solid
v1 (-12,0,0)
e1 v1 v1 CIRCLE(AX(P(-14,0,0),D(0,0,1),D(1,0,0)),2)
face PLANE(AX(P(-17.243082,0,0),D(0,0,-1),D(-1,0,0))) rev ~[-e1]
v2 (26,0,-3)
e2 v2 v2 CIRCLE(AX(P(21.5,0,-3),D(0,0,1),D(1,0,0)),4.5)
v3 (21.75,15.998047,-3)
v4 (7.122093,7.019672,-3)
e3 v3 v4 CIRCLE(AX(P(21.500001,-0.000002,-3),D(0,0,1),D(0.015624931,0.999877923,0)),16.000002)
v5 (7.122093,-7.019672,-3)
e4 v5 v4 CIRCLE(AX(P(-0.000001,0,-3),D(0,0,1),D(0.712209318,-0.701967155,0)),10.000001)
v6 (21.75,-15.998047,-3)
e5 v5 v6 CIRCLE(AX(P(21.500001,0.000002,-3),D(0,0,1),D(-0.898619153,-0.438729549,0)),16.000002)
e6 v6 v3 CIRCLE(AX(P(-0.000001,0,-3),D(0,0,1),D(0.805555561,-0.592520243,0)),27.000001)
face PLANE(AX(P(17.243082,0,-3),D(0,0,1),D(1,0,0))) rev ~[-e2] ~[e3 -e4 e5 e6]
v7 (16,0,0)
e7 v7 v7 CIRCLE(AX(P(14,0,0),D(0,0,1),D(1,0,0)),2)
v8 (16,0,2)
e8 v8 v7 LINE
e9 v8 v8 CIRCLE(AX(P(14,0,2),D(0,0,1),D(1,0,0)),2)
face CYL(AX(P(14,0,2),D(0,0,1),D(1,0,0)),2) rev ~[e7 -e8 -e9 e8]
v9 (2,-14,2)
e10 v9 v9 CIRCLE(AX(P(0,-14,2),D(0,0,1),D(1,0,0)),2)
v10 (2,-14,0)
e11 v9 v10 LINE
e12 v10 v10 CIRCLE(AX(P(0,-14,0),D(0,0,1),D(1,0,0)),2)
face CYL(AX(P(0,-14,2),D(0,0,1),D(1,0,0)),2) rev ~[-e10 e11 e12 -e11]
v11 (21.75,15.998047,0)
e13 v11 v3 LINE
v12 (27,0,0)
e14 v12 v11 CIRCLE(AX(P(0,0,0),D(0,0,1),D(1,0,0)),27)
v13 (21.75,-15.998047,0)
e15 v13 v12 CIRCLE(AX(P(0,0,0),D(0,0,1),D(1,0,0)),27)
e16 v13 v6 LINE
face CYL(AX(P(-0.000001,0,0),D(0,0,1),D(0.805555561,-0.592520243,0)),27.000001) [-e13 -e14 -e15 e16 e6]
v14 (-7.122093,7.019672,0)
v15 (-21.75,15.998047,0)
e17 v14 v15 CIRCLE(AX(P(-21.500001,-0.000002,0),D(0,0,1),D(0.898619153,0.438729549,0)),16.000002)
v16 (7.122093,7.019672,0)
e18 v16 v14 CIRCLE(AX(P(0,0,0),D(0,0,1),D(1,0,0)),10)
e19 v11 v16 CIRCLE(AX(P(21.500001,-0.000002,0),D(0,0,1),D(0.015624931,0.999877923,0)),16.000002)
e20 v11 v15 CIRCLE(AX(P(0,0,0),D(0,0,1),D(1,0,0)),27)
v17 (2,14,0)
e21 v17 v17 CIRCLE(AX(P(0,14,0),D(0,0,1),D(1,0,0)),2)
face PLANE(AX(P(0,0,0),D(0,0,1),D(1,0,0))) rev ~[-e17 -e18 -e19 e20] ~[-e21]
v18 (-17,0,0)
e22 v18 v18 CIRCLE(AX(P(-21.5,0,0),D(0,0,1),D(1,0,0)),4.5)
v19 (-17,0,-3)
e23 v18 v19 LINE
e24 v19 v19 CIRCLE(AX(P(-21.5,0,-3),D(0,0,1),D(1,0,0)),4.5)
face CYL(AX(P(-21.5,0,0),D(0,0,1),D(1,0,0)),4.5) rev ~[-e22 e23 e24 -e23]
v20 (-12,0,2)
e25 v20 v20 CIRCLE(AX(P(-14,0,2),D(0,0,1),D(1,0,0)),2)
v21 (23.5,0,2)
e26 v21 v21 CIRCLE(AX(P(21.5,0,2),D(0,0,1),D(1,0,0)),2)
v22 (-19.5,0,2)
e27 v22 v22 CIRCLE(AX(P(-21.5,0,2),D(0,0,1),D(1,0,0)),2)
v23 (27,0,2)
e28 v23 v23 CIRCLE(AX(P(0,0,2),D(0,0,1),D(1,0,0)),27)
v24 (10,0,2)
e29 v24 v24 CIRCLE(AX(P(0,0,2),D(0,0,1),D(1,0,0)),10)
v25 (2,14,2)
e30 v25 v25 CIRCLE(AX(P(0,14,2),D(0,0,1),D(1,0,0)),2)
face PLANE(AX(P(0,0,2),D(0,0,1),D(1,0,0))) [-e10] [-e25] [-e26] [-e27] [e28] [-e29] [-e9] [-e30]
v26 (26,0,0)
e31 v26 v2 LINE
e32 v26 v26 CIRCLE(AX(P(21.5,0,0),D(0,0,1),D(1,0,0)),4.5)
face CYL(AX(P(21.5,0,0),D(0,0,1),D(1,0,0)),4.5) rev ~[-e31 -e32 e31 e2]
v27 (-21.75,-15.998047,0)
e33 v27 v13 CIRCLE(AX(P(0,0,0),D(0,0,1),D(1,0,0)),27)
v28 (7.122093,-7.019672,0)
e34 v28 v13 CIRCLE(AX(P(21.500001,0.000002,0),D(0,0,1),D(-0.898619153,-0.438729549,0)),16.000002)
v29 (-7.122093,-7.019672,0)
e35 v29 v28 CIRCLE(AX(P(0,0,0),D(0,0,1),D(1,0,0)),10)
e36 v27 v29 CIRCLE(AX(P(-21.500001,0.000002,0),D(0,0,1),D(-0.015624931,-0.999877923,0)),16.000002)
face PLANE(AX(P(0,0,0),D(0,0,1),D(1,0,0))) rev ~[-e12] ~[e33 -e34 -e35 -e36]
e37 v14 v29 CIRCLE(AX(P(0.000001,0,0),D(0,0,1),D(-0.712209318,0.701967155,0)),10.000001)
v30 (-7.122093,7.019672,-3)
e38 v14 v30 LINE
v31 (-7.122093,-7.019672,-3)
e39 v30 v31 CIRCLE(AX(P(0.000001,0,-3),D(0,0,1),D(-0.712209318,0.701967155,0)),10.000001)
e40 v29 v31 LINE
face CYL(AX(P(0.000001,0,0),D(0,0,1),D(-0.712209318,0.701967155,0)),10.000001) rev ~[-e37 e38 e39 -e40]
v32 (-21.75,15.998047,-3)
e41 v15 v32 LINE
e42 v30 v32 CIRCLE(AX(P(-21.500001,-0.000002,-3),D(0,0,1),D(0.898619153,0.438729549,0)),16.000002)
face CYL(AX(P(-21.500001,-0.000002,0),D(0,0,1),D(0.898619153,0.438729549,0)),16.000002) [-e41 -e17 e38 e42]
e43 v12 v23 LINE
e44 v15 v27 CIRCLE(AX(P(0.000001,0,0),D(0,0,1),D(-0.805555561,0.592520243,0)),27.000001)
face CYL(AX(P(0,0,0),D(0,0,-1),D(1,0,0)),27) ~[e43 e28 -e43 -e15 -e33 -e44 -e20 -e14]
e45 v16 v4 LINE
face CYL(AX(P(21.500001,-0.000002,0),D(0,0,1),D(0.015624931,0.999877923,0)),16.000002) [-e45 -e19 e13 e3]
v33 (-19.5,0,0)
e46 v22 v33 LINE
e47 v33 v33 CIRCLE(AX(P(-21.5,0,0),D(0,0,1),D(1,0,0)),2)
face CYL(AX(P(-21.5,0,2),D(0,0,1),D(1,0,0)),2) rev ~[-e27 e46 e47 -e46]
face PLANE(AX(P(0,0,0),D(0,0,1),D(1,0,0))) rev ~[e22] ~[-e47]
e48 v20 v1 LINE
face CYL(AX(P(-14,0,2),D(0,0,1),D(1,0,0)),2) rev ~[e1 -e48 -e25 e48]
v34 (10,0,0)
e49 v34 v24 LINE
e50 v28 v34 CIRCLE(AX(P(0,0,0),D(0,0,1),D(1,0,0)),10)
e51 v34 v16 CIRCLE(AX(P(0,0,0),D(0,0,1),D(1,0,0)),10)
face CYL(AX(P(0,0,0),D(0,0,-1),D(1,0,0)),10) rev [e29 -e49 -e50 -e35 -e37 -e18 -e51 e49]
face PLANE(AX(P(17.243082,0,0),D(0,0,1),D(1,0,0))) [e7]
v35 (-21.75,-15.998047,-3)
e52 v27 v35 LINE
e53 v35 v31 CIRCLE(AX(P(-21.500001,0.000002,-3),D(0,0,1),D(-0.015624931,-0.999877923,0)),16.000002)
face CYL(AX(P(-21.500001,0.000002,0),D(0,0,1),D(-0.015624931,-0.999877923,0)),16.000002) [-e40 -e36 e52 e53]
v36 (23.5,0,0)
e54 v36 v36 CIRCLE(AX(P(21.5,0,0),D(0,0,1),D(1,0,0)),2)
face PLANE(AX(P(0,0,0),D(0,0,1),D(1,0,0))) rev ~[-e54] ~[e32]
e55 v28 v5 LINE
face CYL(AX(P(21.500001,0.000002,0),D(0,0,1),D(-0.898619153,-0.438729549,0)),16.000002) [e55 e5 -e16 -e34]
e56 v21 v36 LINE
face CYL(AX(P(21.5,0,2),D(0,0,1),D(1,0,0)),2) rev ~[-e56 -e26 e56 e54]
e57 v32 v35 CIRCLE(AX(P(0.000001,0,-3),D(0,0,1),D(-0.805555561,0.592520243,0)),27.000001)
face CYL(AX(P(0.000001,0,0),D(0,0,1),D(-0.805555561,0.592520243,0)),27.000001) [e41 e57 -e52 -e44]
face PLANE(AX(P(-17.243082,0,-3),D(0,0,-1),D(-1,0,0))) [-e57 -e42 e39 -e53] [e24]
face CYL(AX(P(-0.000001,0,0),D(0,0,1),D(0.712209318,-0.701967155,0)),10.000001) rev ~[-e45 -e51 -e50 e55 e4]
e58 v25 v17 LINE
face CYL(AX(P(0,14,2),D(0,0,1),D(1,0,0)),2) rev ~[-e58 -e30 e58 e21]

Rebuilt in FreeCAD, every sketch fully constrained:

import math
import FreeCAD as App
import Part
import Sketcher
Q = App.Units.Quantity

doc = App.newDocument("Part")
body = doc.addObject("PartDesign::Body", "Body")

# Sketch on XY plane
sketch1 = body.newObject("Sketcher::SketchObject", "Sketch")
sketch1.AttachmentSupport = (doc.getObject("XY_Plane"), [""])
sketch1.MapMode = "FlatFace"
sketch1.addGeometry([
    Part.Circle(App.Vector(0, 0, 0), App.Vector(0, 0, 1), 27),
    Part.Circle(App.Vector(0, 0, 0), App.Vector(0, 0, 1), 10),
], False)
sketch1.addConstraint([
    Sketcher.Constraint("Coincident", 0, 3, -1, 1),
    Sketcher.Constraint("Coincident", 1, 3, -1, 1),
    Sketcher.Constraint("Diameter", 0, Q("54 mm")),
    Sketcher.Constraint("Diameter", 1, Q("20 mm")),
])
pad1 = body.newObject("PartDesign::Pad", "Pad")
pad1.Profile = sketch1
pad1.Length = 2

# Sketch on XY plane
sketch2 = body.newObject("Sketcher::SketchObject", "Sketch001")
sketch2.AttachmentSupport = (doc.getObject("XY_Plane"), [""])
sketch2.MapMode = "FlatFace"
sketch2.AttachmentOffset = App.Placement(App.Vector(0, 0, 2), App.Rotation())
sketch2.addGeometry([
    Part.Circle(App.Vector(0, 14, 0), App.Vector(0, 0, 1), 2),
    Part.Circle(App.Vector(14, 0, 0), App.Vector(0, 0, 1), 2),
    Part.Circle(App.Vector(0, -14, 0), App.Vector(0, 0, 1), 2),
    Part.Circle(App.Vector(-14, 0, 0), App.Vector(0, 0, 1), 2),
], False)
sketch2.addConstraint([
    Sketcher.Constraint("Equal", 0, 1),
    Sketcher.Constraint("Equal", 1, 2),
    Sketcher.Constraint("Equal", 2, 3),
    Sketcher.Constraint("Symmetric", 0, 3, 2, 3, -1, 1),
    Sketcher.Constraint("Symmetric", 1, 3, 3, 3, -1, 1),
    Sketcher.Constraint("PointOnObject", 0, 3, -2),
    Sketcher.Constraint("PointOnObject", 1, 3, -1),
    Sketcher.Constraint("Diameter", 0, Q("4 mm")),
    Sketcher.Constraint("DistanceY", -1, 1, 0, 3, Q("14 mm")),
    Sketcher.Constraint("DistanceX", -1, 1, 1, 3, Q("14 mm")),
])
pocket1 = body.newObject("PartDesign::Pocket", "Pocket")
pocket1.Profile = sketch2
pocket1.Type = "ThroughAll"

# Sketch on XY plane
sketch3 = body.newObject("Sketcher::SketchObject", "Sketch002")
sketch3.AttachmentSupport = (doc.getObject("XY_Plane"), [""])
sketch3.MapMode = "FlatFace"
sketch3.AttachmentOffset = App.Placement(App.Vector(0, 0, 2), App.Rotation())
sketch3.addGeometry([
    Part.Circle(App.Vector(-21.5, 0, 0), App.Vector(0, 0, 1), 2),
    Part.Circle(App.Vector(21.5, 0, 0), App.Vector(0, 0, 1), 2),
], False)
sketch3.addConstraint([
    Sketcher.Constraint("Equal", 0, 1),
    Sketcher.Constraint("Symmetric", 0, 3, 1, 3, -1, 1),
    Sketcher.Constraint("PointOnObject", 0, 3, -1),
    Sketcher.Constraint("Diameter", 0, Q("4 mm")),
    Sketcher.Constraint("DistanceX", 0, 3, 1, 3, Q("43 mm")),
])
pocket2 = body.newObject("PartDesign::Pocket", "Pocket001")
pocket2.Profile = sketch3
pocket2.Type = "ThroughAll"

# Sketch on XY plane
sketch4 = body.newObject("Sketcher::SketchObject", "Sketch003")
sketch4.AttachmentSupport = (doc.getObject("XY_Plane"), [""])
sketch4.MapMode = "FlatFace"
sketch4.addGeometry([
    Part.ArcOfCircle(Part.Circle(App.Vector(21.5, 0, 0), App.Vector(0, 0, 1), 16), math.radians(89), math.radians(154)),  # 0
    Part.ArcOfCircle(Part.Circle(App.Vector(0, 0, 0), App.Vector(0, 0, 1), 10), math.radians(-45), math.radians(45)),  # 1
    Part.ArcOfCircle(Part.Circle(App.Vector(21.5, 0, 0), App.Vector(0, 0, 1), 16), math.radians(-154), math.radians(-89)),  # 2
    Part.ArcOfCircle(Part.Circle(App.Vector(0, 0, 0), App.Vector(0, 0, 1), 27), math.radians(-36), math.radians(36)),  # 3
    Part.Circle(App.Vector(21.5, 0, 0), App.Vector(0, 0, 1), 4.5),  # 4
    Part.ArcOfCircle(Part.Circle(App.Vector(0, 0, 0), App.Vector(0, 0, 1), 10), math.radians(135), math.radians(225)),  # 5
    Part.ArcOfCircle(Part.Circle(App.Vector(-21.5, 0, 0), App.Vector(0, 0, 1), 16), math.radians(26), math.radians(91)),  # 6
    Part.ArcOfCircle(Part.Circle(App.Vector(0, 0, 0), App.Vector(0, 0, 1), 27), math.radians(144), math.radians(216)),  # 7
    Part.ArcOfCircle(Part.Circle(App.Vector(-21.5, 0, 0), App.Vector(0, 0, 1), 16), math.radians(-91), math.radians(-26)),  # 8
    Part.Circle(App.Vector(-21.5, 0, 0), App.Vector(0, 0, 1), 4.5),  # 9
], False)
sketch4.addConstraint([
    Sketcher.Constraint("Coincident", 0, 2, 1, 2),
    Sketcher.Constraint("Coincident", 1, 1, 2, 1),
    Sketcher.Constraint("Coincident", 2, 2, 3, 1),
    Sketcher.Constraint("Coincident", 3, 2, 0, 1),
    Sketcher.Constraint("Coincident", 5, 1, 6, 1),
    Sketcher.Constraint("Coincident", 6, 2, 7, 1),
    Sketcher.Constraint("Coincident", 7, 2, 8, 1),
    Sketcher.Constraint("Coincident", 8, 2, 5, 2),
    Sketcher.Constraint("Coincident", 1, 3, -1, 1),
    Sketcher.Constraint("Coincident", 3, 3, -1, 1),
    Sketcher.Constraint("Coincident", 5, 3, -1, 1),
    Sketcher.Constraint("Coincident", 7, 3, -1, 1),
    Sketcher.Constraint("Coincident", 2, 3, 0, 3),
    Sketcher.Constraint("Coincident", 4, 3, 0, 3),
    Sketcher.Constraint("Coincident", 8, 3, 6, 3),
    Sketcher.Constraint("Coincident", 9, 3, 6, 3),
    Sketcher.Constraint("Equal", 0, 2),
    Sketcher.Constraint("Equal", 1, 5),
    Sketcher.Constraint("Equal", 2, 6),
    Sketcher.Constraint("Equal", 3, 7),
    Sketcher.Constraint("Equal", 6, 8),
    Sketcher.Constraint("Equal", 4, 9),
    Sketcher.Constraint("Symmetric", 0, 3, 6, 3, -1, 1),
    Sketcher.Constraint("PointOnObject", 0, 3, -1),
    Sketcher.Constraint("Diameter", 4, Q("9 mm")),
    Sketcher.Constraint("Radius", 0, Q("16.000002 mm")),
    Sketcher.Constraint("Radius", 1, Q("10.000001 mm")),
    Sketcher.Constraint("Radius", 3, Q("27.000001 mm")),
    Sketcher.Constraint("DistanceX", 6, 3, 4, 3, Q("43.000001 mm")),
])
pad2 = body.newObject("PartDesign::Pad", "Pad001")
pad2.Profile = sketch4
pad2.Length = 3
pad2.Reversed = True

doc.recompute()
